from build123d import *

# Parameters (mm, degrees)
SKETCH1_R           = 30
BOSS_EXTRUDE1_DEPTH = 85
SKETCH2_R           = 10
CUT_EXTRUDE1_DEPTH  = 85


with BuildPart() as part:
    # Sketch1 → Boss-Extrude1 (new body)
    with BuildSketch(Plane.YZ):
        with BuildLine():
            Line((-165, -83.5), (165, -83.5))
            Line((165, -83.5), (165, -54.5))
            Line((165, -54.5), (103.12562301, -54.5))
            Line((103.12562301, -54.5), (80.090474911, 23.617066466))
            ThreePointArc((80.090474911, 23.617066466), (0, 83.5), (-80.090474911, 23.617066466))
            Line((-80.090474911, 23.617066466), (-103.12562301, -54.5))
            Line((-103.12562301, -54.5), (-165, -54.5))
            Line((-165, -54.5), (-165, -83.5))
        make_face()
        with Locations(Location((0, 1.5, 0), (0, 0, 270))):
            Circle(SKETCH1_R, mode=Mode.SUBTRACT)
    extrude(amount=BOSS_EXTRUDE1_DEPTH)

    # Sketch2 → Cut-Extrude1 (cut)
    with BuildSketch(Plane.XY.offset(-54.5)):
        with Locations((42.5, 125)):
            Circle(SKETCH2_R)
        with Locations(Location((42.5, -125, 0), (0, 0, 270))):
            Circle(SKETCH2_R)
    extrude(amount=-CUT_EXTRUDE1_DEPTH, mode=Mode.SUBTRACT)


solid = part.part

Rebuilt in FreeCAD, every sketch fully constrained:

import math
import FreeCAD as App
import Part
import Sketcher

V = App.Vector
Q = App.Units.Quantity

doc = App.newDocument("Part")
params = doc.addObject("Spreadsheet::Sheet", "Params")
for row, (alias, value) in enumerate([
    ("sketch1_diameter", "60 mm"),
    ("sketch1_radius", "83.5 mm"),
    ("sketch1_width", "330 mm"),
    ("sketch1_height", "29 mm"),
    ("pad1_length", "85 mm"),
    ("sketch2_diameter", "20 mm"),
    ("pocket1_length", "85 mm"),
], start=1):
    params.set(f"A{row}", alias)
    params.set(f"B{row}", "=" + value)
    params.setAlias(f"B{row}", alias)

body = doc.addObject("PartDesign::Body", "Body")

sketch1 = doc.addObject("Sketcher::SketchObject", "Sketch")
body.addObject(sketch1)
sketch1.AttachmentSupport = (doc.YZ_Plane, [""])
sketch1.MapMode = "FlatFace"
sketch1.addGeometry([
    Part.LineSegment(V(-165, -83.5, 0), V(165, -83.5, 0)),
    Part.LineSegment(V(165, -83.5, 0), V(165, -54.5, 0)),
    Part.LineSegment(V(165, -54.5, 0), V(103.125623, -54.5, 0)),
    Part.LineSegment(V(103.125623, -54.5, 0), V(80.090475, 23.617066, 0)),
    Part.ArcOfCircle(Part.Circle(V(0, 0, 0), V(0, 0, 1), 83.5), math.radians(16.429726), math.radians(163.570274)),
    Part.LineSegment(V(-80.090475, 23.617066, 0), V(-103.125623, -54.5, 0)),
    Part.LineSegment(V(-103.125623, -54.5, 0), V(-165, -54.5, 0)),
    Part.LineSegment(V(-165, -54.5, 0), V(-165, -83.5, 0)),
    Part.Circle(V(0, 1.5, 0), V(0, 0, 1), 30),
], False)
sketch1.addConstraint([
    Sketcher.Constraint("Coincident", 0, 2, 1, 1),
    Sketcher.Constraint("Coincident", 1, 2, 2, 1),
    Sketcher.Constraint("Coincident", 2, 2, 3, 1),
    Sketcher.Constraint("Tangent", 3, 2, 4, 1),
    Sketcher.Constraint("Tangent", 4, 2, 5, 1),
    Sketcher.Constraint("Coincident", 5, 2, 6, 1),
    Sketcher.Constraint("Coincident", 6, 2, 7, 1),
    Sketcher.Constraint("Coincident", 7, 2, 0, 1),
    Sketcher.Constraint("Horizontal", 0),
    Sketcher.Constraint("Vertical", 1),
    Sketcher.Constraint("Horizontal", 2),
    Sketcher.Constraint("Horizontal", 6),
    Sketcher.Constraint("Vertical", 7),
    Sketcher.Constraint("Coincident", 4, 3, -1, 1),
    Sketcher.Constraint("Symmetric", 2, 2, 5, 2, -2),
    Sketcher.Constraint("PointOnObject", 8, 3, -2),
    Sketcher.Constraint("Equal", 2, 6),
    Sketcher.Constraint("Diameter", 8, Q("60 mm")),
    Sketcher.Constraint("Radius", 4, Q("83.5 mm")),
    Sketcher.Constraint("DistanceX", 0, 1, 0, 2, Q("330 mm")),
    Sketcher.Constraint("DistanceY", 1, 1, 1, 2, Q("29 mm")),
    Sketcher.Constraint("DistanceY", 0, 2, 8, 3, Q("85 mm")),
    Sketcher.Constraint("DistanceY", -1, 1, 8, 3, Q("1.5 mm")),
    Sketcher.Constraint("Distance", 3, Q("81.442582 mm")),
])
sketch1.setExpression("Constraints[17]", "Params.sketch1_diameter")
sketch1.setExpression("Constraints[18]", "Params.sketch1_radius")
sketch1.setExpression("Constraints[19]", "Params.sketch1_width")
sketch1.setExpression("Constraints[20]", "Params.sketch1_height")
pad1 = doc.addObject("PartDesign::Pad", "Pad")
body.addObject(pad1)
pad1.Profile = sketch1
pad1.setExpression("Length", "Params.pad1_length")

sketch2 = doc.addObject("Sketcher::SketchObject", "Sketch001")
body.addObject(sketch2)
sketch2.AttachmentSupport = (doc.XY_Plane, [""])
sketch2.MapMode = "FlatFace"
sketch2.AttachmentOffset = App.Placement(V(0, 0, -54.5), App.Rotation())
sketch2.addGeometry([
    Part.Circle(V(42.5, 125, 0), V(0, 0, 1), 10),
    Part.Circle(V(42.5, -125, 0), V(0, 0, 1), 10),
], False)
sketch2.addConstraint([
    Sketcher.Constraint("Equal", 0, 1),
    Sketcher.Constraint("Symmetric", 0, 3, 1, 3, -1),
    Sketcher.Constraint("Diameter", 0, Q("20 mm")),
    Sketcher.Constraint("DistanceY", -1, 1, 0, 3, Q("125 mm")),
    Sketcher.Constraint("DistanceX", -1, 1, 0, 3, Q("42.5 mm")),
])
sketch2.setExpression("Constraints[2]", "Params.sketch2_diameter")
pocket1 = doc.addObject("PartDesign::Pocket", "Pocket")
body.addObject(pocket1)
pocket1.Profile = sketch2
pocket1.setExpression("Length", "Params.pocket1_length")

doc.recompute()
